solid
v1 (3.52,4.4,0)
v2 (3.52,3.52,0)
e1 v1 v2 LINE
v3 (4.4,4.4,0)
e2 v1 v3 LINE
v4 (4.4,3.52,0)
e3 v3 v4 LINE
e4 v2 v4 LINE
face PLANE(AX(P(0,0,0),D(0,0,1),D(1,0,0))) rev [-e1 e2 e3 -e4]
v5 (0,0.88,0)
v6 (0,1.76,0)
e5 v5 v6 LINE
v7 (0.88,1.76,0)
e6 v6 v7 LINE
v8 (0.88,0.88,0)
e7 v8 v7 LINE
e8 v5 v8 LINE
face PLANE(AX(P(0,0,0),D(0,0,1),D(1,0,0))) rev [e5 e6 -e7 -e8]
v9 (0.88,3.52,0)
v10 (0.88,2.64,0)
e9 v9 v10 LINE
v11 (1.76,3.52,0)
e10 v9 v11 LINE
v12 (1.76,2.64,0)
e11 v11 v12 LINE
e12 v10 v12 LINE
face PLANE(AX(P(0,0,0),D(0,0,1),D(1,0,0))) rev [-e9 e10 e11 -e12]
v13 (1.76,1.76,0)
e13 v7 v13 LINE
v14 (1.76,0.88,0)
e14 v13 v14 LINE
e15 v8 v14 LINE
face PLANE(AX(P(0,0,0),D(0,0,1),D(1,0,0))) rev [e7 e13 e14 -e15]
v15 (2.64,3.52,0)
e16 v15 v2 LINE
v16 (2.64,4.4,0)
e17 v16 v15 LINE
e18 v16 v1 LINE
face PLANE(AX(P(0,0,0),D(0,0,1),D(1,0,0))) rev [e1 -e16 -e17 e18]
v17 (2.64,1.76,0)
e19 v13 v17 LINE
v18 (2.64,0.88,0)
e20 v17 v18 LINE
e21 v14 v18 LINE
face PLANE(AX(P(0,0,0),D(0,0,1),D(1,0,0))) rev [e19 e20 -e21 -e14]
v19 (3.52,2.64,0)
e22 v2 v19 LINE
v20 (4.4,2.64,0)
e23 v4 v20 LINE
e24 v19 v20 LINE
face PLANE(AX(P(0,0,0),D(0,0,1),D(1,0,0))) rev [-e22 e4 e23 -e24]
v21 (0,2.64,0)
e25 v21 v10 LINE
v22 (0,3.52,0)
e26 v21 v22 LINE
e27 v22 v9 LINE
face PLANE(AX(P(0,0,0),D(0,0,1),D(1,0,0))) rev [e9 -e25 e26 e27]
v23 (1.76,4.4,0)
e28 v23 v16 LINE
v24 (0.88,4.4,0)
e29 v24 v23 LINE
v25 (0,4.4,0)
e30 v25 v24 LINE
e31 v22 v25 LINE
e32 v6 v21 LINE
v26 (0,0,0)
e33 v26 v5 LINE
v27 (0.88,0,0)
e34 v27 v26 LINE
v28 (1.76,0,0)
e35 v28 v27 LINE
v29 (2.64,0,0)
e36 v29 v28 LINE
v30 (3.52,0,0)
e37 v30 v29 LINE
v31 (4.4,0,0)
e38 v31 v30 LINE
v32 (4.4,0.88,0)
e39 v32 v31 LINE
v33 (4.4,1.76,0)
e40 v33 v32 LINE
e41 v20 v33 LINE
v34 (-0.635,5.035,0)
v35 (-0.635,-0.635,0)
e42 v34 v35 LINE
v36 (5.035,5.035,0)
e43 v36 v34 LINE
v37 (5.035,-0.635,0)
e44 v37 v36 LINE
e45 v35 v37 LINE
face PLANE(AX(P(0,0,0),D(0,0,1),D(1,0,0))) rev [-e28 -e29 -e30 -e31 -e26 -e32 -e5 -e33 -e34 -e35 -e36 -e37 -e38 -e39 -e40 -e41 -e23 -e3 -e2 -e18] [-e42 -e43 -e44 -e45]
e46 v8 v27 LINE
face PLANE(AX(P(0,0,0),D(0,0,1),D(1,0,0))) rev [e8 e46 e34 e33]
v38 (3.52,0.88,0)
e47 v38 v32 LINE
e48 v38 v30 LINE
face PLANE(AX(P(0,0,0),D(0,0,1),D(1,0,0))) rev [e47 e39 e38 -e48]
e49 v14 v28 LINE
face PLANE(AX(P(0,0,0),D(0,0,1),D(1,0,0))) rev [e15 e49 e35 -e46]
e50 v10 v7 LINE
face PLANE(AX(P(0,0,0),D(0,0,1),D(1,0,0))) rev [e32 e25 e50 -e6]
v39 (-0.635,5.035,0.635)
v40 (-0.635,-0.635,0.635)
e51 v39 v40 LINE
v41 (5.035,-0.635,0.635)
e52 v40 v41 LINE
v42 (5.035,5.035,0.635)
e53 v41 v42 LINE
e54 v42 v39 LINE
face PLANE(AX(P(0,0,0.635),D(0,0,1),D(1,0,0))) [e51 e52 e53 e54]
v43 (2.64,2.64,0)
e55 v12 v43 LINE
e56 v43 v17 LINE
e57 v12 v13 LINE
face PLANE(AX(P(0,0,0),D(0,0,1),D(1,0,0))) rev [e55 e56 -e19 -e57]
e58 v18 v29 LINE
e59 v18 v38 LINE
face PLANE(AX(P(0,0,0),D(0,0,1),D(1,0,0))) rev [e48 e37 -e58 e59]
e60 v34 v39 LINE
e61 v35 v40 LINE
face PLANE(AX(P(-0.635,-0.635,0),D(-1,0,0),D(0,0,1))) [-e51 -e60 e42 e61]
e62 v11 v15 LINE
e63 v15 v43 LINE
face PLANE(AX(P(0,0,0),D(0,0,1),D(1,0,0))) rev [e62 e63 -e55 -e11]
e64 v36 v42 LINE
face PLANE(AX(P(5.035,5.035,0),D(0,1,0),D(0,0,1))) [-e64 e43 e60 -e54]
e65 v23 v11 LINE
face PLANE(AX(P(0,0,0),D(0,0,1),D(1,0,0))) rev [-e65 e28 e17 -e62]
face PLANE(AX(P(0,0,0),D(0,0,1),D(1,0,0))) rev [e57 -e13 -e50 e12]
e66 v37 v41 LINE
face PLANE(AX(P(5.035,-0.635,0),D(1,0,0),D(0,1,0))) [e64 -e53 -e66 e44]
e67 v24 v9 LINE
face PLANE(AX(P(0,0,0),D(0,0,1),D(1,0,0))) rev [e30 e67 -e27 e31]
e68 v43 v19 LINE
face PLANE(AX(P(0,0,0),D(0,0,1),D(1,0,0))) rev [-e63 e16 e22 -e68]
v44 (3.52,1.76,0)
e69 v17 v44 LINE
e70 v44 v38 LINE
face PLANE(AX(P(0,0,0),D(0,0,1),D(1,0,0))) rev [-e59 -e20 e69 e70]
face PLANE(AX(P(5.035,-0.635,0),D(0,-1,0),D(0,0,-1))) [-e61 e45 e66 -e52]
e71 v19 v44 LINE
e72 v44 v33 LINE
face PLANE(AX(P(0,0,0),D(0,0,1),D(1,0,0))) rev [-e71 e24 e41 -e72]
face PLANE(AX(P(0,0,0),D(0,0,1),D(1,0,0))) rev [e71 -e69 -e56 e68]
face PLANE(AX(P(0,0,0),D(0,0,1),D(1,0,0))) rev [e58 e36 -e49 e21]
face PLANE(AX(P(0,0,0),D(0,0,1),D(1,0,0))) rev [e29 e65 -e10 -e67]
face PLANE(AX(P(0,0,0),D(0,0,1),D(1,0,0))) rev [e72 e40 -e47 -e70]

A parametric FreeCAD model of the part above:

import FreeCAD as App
import Part
import Sketcher
from FreeCAD import Vector
Q = App.Units.Quantity


def add_polygon(sketch, points):
    """Adds a closed chain of lines whose ends are joined by coincident constraints."""
    first, n = sketch.GeometryCount, len(points)
    for a, b in zip(points, points[1:] + points[:1]):
        sketch.addGeometry(Part.LineSegment(App.Vector(*a, 0), App.Vector(*b, 0)), False)
    for i in range(n):
        sketch.addConstraint(Sketcher.Constraint("Coincident", first + i, 2, first + (i + 1) % n, 1))

doc = App.newDocument("Part")
body = doc.addObject("PartDesign::Body", "Body")

# Sketch on XY plane
sketch1 = doc.addObject("Sketcher::SketchObject", "Sketch")
body.addObject(sketch1)
sketch1.AttachmentSupport = (doc.XY_Plane, [""])
sketch1.MapMode = "FlatFace"
add_polygon(sketch1, [(0.9, 0.9), (0.9, 0), (3.5, 0), (3.5, 0.9), (4.4, 0.9), (4.4, 3.5), (3.5, 3.5), (3.5, 4.4), (0.9, 4.4), (0.9, 3.5), (0, 3.5), (0, 0.9)])  # lines 0-11
sketch1.addConstraint([
    Sketcher.Constraint("Vertical", 0),
    Sketcher.Constraint("Horizontal", 1),
    Sketcher.Constraint("Vertical", 2),
    Sketcher.Constraint("Horizontal", 3),
    Sketcher.Constraint("Vertical", 4),
    Sketcher.Constraint("Horizontal", 5),
    Sketcher.Constraint("Vertical", 6),
    Sketcher.Constraint("Horizontal", 7),
    Sketcher.Constraint("Vertical", 8),
    Sketcher.Constraint("Horizontal", 9),
    Sketcher.Constraint("Vertical", 10),
    Sketcher.Constraint("Horizontal", 11),
    Sketcher.Constraint("PointOnObject", 0, 2, -1),
    Sketcher.Constraint("PointOnObject", 9, 2, -2),
    Sketcher.Constraint("Horizontal", 5, 2, 8, 2),
    Sketcher.Constraint("Horizontal", 3, 2, 10, 2),
    Sketcher.Constraint("Vertical", 2, 2, 5, 2),
    Sketcher.Constraint("Vertical", 0, 2, 7, 2),
    Sketcher.Constraint("Equal", 5, 9),
    Sketcher.Constraint("Equal", 11, 0),
    Sketcher.Constraint("Equal", 7, 4),
    Sketcher.Constraint("Equal", 2, 6),
    Sketcher.Constraint("DistanceX", 1, 1, 1, 2, 2.64),
    Sketcher.Constraint("DistanceX", 3, 1, 3, 2, 0.88),
])
pad1 = doc.addObject("PartDesign::Pad", "Pad")
body.addObject(pad1)
pad1.Profile = sketch1
pad1.Length = Q("0.025 in")

# Sketch on XY plane
sketch2 = doc.addObject("Sketcher::SketchObject", "Sketch001")
body.addObject(sketch2)
sketch2.AttachmentSupport = (doc.XY_Plane, [""])
sketch2.MapMode = "FlatFace"
sketch2.AttachmentOffset = App.Placement(Vector(0, 0, 0.025 * 25.4), App.Rotation())
add_polygon(sketch2, [(-1, 5), (-1, -1), (5, -1), (5, 5)])  # lines 0-3
sketch2.addConstraint([
    Sketcher.Constraint("Vertical", 0),
    Sketcher.Constraint("Horizontal", 1),
    Sketcher.Constraint("Vertical", 2),
    Sketcher.Constraint("Horizontal", 3),
    Sketcher.Constraint("Equal", 3, 0),
    Sketcher.Constraint("DistanceX", 0, 2, -1, 1, Q("0.025 in")),
    Sketcher.Constraint("DistanceY", 0, 2, -1, 1, Q("0.025 in")),
    Sketcher.Constraint("DistanceX", 1, 1, 1, 2, 5.67),
])
pad2 = doc.addObject("PartDesign::Pad", "Pad001")
body.addObject(pad2)
pad2.Profile = sketch2
pad2.Length = Q("0.025 in")
pad2.Reversed = True

doc.recompute()
